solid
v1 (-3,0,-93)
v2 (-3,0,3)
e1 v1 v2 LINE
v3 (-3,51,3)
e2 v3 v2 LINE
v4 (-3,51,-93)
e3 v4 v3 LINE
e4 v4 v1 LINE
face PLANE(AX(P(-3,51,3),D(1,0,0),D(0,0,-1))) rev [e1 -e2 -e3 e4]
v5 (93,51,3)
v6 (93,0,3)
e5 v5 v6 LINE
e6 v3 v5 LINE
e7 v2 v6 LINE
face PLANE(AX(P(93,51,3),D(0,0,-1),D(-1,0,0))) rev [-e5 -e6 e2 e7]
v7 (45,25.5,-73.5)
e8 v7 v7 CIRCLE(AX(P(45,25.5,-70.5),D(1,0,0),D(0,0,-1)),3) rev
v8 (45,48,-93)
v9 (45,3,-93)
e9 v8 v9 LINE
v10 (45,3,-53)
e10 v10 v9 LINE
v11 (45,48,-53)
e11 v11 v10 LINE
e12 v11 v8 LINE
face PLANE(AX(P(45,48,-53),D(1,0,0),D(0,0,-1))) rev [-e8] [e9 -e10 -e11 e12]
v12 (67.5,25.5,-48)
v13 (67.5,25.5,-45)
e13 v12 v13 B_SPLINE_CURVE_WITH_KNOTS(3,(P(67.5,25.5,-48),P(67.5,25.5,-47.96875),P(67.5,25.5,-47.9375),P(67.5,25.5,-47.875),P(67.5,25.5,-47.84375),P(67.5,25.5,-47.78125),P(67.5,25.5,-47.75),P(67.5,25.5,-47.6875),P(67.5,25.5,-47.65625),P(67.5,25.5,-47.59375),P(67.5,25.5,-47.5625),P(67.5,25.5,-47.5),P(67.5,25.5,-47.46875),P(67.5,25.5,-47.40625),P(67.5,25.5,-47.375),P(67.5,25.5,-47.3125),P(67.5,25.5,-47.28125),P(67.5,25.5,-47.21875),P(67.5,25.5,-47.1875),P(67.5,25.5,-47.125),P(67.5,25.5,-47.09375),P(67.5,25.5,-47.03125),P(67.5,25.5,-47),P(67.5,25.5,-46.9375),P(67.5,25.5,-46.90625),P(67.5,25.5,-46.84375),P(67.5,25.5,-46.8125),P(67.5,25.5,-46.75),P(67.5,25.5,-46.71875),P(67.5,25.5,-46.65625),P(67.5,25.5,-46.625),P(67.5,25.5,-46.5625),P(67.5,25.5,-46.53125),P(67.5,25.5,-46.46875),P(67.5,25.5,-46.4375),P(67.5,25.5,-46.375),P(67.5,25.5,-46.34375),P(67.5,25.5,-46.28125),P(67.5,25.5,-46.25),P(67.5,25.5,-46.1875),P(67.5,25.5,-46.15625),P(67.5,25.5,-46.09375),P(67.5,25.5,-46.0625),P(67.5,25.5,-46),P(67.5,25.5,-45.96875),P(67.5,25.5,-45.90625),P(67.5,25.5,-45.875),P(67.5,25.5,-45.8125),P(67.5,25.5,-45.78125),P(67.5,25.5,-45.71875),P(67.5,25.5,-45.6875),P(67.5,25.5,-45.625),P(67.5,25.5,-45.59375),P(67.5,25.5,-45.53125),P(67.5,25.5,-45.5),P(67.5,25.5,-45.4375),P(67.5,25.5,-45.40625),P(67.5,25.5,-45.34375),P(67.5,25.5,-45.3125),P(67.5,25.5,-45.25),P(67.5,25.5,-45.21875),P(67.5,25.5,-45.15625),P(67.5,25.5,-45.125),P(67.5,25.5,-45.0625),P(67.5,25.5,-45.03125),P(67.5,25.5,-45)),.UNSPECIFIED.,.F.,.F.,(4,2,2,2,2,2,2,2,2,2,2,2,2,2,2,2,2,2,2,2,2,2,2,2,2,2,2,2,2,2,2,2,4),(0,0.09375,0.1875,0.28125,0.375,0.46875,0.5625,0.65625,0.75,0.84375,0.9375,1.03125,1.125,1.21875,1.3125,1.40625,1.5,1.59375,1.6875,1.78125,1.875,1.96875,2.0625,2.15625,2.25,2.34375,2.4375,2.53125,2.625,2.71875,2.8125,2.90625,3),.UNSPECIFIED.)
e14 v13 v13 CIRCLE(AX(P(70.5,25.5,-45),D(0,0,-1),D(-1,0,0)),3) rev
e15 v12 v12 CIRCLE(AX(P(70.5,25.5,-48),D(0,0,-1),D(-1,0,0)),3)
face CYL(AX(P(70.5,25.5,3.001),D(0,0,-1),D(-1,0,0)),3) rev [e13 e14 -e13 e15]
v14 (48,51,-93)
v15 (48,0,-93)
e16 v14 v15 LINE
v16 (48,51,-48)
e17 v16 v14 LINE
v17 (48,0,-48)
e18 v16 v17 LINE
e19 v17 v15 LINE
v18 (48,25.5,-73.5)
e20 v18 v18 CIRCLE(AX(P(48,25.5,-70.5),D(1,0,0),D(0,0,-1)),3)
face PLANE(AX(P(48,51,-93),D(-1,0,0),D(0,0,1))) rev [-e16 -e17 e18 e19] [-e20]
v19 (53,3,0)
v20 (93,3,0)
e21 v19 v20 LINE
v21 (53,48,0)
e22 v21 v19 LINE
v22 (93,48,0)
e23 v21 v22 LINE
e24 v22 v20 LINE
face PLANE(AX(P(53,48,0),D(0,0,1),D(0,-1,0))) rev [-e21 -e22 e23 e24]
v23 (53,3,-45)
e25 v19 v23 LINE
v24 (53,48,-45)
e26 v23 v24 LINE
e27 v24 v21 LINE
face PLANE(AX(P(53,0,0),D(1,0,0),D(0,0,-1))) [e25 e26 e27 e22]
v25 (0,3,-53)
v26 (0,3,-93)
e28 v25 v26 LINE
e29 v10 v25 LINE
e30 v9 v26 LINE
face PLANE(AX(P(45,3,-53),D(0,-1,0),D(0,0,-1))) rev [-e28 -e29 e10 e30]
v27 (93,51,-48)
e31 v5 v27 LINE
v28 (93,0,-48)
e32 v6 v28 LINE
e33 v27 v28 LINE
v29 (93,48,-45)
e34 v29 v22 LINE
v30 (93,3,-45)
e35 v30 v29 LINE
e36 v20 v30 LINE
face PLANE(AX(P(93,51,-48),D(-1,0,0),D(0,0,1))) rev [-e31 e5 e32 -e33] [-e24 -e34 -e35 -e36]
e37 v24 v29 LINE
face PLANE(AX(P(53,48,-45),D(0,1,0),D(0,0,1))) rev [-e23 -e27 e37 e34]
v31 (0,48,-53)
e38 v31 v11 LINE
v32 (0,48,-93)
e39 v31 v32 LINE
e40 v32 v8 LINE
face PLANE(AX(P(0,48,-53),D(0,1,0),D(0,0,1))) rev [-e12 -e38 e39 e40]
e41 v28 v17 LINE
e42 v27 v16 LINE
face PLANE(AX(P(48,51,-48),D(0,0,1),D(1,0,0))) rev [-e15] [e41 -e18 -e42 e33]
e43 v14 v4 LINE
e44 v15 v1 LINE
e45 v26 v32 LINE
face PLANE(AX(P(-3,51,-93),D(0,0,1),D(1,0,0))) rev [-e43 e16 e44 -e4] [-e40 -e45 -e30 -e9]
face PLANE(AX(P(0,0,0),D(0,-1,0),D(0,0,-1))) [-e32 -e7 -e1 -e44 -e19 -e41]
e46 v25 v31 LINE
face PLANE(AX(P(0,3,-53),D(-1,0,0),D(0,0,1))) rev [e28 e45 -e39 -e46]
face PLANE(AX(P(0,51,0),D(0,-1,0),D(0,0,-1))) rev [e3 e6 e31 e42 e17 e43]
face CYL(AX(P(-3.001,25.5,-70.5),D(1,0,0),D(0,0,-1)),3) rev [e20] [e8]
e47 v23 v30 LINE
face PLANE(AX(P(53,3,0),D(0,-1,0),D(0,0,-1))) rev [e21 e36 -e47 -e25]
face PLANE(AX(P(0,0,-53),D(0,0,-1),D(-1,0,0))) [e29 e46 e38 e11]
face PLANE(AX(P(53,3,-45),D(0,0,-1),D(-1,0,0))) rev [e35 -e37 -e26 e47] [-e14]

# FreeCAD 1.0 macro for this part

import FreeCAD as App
import Part
import Sketcher

V = App.Vector

doc = App.newDocument("Part")
params = doc.addObject("Spreadsheet::Sheet", "Params")
for row, (alias, value) in enumerate([
    ("sketch1_width", "96 mm"),
    ("sketch1_width2", "45 mm"),
    ("pad1_length", "51 mm"),
    ("sketch2_width", "45 mm"),
    ("pocket1_length", "40 mm"),
    ("sketch3_width", "45 mm"),
    ("pocket2_length", "40 mm"),
    ("sketch4_diameter", "6 mm"),
    ("sketch5_diameter", "6 mm"),
], start=1):
    params.set(f"A{row}", alias)
    params.set(f"B{row}", "=" + value)
    params.setAlias(f"B{row}", alias)

body = doc.addObject("PartDesign::Body", "Body")

# Sketch on XZ plane
sketch1 = body.newObject("Sketcher::SketchObject", "Sketch")
sketch1.AttachmentSupport = (doc.getObject("XZ_Plane"), [""])
sketch1.MapMode = "FlatFace"
sketch1.addGeometry([
    Part.LineSegment(V(-3, -93, 0), V(-3, 3, 0)),  # 0
    Part.LineSegment(V(-3, 3, 0), V(93, 3, 0)),  # 1
    Part.LineSegment(V(93, 3, 0), V(93, -48, 0)),  # 2
    Part.LineSegment(V(93, -48, 0), V(48, -48, 0)),  # 3
    Part.LineSegment(V(48, -48, 0), V(48, -93, 0)),  # 4
    Part.LineSegment(V(48, -93, 0), V(-3, -93, 0)),  # 5
], False)
sketch1.addConstraint([
    Sketcher.Constraint("Coincident", 0, 2, 1, 1),
    Sketcher.Constraint("Coincident", 1, 2, 2, 1),
    Sketcher.Constraint("Coincident", 2, 2, 3, 1),
    Sketcher.Constraint("Coincident", 3, 2, 4, 1),
    Sketcher.Constraint("Coincident", 4, 2, 5, 1),
    Sketcher.Constraint("Coincident", 5, 2, 0, 1),
    Sketcher.Constraint("Vertical", 0),
    Sketcher.Constraint("Horizontal", 1),
    Sketcher.Constraint("Vertical", 2),
    Sketcher.Constraint("Horizontal", 3),
    Sketcher.Constraint("Vertical", 4),
    Sketcher.Constraint("Horizontal", 5),
    Sketcher.Constraint("Equal", 1, 0),
    Sketcher.Constraint("Equal", 5, 2),
    Sketcher.Constraint("DistanceX", 1, 1, 1, 2, 96.0),
    Sketcher.Constraint("DistanceX", 3, 2, 3, 1, 45.0),
    Sketcher.Constraint("DistanceX", 0, 2, -1, 1, 3.0),
    Sketcher.Constraint("DistanceY", -1, 1, 0, 2, 3.0),
])
sketch1.setExpression("Constraints[14]", "Params.sketch1_width")
sketch1.setExpression("Constraints[15]", "Params.sketch1_width2")
pad1 = body.newObject("PartDesign::Pad", "Pad")
pad1.Profile = sketch1
pad1.setExpression("Length", "Params.pad1_length")
pad1.Reversed = True

# Sketch on YZ plane
sketch2 = body.newObject("Sketcher::SketchObject", "Sketch001")
sketch2.AttachmentSupport = (doc.getObject("YZ_Plane"), [""])
sketch2.MapMode = "FlatFace"
sketch2.AttachmentOffset = App.Placement(V(0, 0, 93), App.Rotation())
sketch2.addGeometry([
    Part.LineSegment(V(48, 0, 0), V(3, 0, 0)),
    Part.LineSegment(V(3, 0, 0), V(3, -45, 0)),
    Part.LineSegment(V(3, -45, 0), V(48, -45, 0)),
    Part.LineSegment(V(48, -45, 0), V(48, 0, 0)),
], False)
sketch2.addConstraint([
    Sketcher.Constraint("Coincident", 0, 2, 1, 1),
    Sketcher.Constraint("Coincident", 1, 2, 2, 1),
    Sketcher.Constraint("Coincident", 2, 2, 3, 1),
    Sketcher.Constraint("Coincident", 3, 2, 0, 1),
    Sketcher.Constraint("Horizontal", 0),
    Sketcher.Constraint("Vertical", 1),
    Sketcher.Constraint("Horizontal", 2),
    Sketcher.Constraint("Vertical", 3),
    Sketcher.Constraint("PointOnObject", 0, 2, -1),
    Sketcher.Constraint("Equal", 2, 1),
    Sketcher.Constraint("DistanceX", 0, 2, 0, 1, 45.0),
    Sketcher.Constraint("DistanceX", -1, 1, 0, 2, 3.0),
])
sketch2.setExpression("Constraints[10]", "Params.sketch2_width")
pocket1 = body.newObject("PartDesign::Pocket", "Pocket")
pocket1.Profile = sketch2
pocket1.setExpression("Length", "Params.pocket1_length")

# Sketch on XY plane
sketch3 = body.newObject("Sketcher::SketchObject", "Sketch002")
sketch3.AttachmentSupport = (doc.getObject("XY_Plane"), [""])
sketch3.MapMode = "FlatFace"
sketch3.AttachmentOffset = App.Placement(V(0, 0, -93), App.Rotation())
sketch3.addGeometry([
    Part.LineSegment(V(45, 48, 0), V(45, 3, 0)),
    Part.LineSegment(V(45, 3, 0), V(0, 3, 0)),
    Part.LineSegment(V(0, 3, 0), V(0, 48, 0)),
    Part.LineSegment(V(0, 48, 0), V(45, 48, 0)),
], False)
sketch3.addConstraint([
    Sketcher.Constraint("Coincident", 0, 2, 1, 1),
    Sketcher.Constraint("Coincident", 1, 2, 2, 1),
    Sketcher.Constraint("Coincident", 2, 2, 3, 1),
    Sketcher.Constraint("Coincident", 3, 2, 0, 1),
    Sketcher.Constraint("Vertical", 0),
    Sketcher.Constraint("Horizontal", 1),
    Sketcher.Constraint("Vertical", 2),
    Sketcher.Constraint("Horizontal", 3),
    Sketcher.Constraint("PointOnObject", 1, 2, -2),
    Sketcher.Constraint("Equal", 3, 0),
    Sketcher.Constraint("DistanceX", 1, 2, 1, 1, 45.0),
    Sketcher.Constraint("DistanceY", -1, 1, 0, 2, 3.0),
])
sketch3.setExpression("Constraints[10]", "Params.sketch3_width")
pocket2 = body.newObject("PartDesign::Pocket", "Pocket001")
pocket2.Profile = sketch3
pocket2.setExpression("Length", "Params.pocket2_length")
pocket2.Reversed = True

# Sketch on XY plane
sketch4 = body.newObject("Sketcher::SketchObject", "Sketch003")
sketch4.AttachmentSupport = (doc.getObject("XY_Plane"), [""])
sketch4.MapMode = "FlatFace"
sketch4.AttachmentOffset = App.Placement(V(0, 0, -48), App.Rotation())
sketch4.addGeometry(Part.Circle(V(70.5, 25.5, 0), V(0, 0, 1), 3), False)
sketch4.addConstraint([
    Sketcher.Constraint("Diameter", 0, 6.0),
    Sketcher.Constraint("DistanceX", -1, 1, 0, 3, 70.5),
    Sketcher.Constraint("DistanceY", -1, 1, 0, 3, 25.5),
])
sketch4.setExpression("Constraints[0]", "Params.sketch4_diameter")
pocket3 = body.newObject("PartDesign::Pocket", "Pocket002")
pocket3.Profile = sketch4
pocket3.Type = "UpToFirst"
pocket3.Reversed = True

# Sketch on YZ plane
sketch5 = body.newObject("Sketcher::SketchObject", "Sketch004")
sketch5.AttachmentSupport = (doc.getObject("YZ_Plane"), [""])
sketch5.MapMode = "FlatFace"
sketch5.AttachmentOffset = App.Placement(V(0, 0, 48), App.Rotation())
sketch5.addGeometry(Part.Circle(V(25.5, -70.5, 0), V(0, 0, 1), 3), False)
sketch5.addConstraint([
    Sketcher.Constraint("Diameter", 0, 6.0),
    Sketcher.Constraint("DistanceX", -1, 1, 0, 3, 25.5),
    Sketcher.Constraint("DistanceY", 0, 3, -1, 1, 70.5),
])
sketch5.setExpression("Constraints[0]", "Params.sketch5_diameter")
pocket4 = body.newObject("PartDesign::Pocket", "Pocket003")
pocket4.Profile = sketch5
pocket4.Type = "UpToFirst"

doc.recompute()
